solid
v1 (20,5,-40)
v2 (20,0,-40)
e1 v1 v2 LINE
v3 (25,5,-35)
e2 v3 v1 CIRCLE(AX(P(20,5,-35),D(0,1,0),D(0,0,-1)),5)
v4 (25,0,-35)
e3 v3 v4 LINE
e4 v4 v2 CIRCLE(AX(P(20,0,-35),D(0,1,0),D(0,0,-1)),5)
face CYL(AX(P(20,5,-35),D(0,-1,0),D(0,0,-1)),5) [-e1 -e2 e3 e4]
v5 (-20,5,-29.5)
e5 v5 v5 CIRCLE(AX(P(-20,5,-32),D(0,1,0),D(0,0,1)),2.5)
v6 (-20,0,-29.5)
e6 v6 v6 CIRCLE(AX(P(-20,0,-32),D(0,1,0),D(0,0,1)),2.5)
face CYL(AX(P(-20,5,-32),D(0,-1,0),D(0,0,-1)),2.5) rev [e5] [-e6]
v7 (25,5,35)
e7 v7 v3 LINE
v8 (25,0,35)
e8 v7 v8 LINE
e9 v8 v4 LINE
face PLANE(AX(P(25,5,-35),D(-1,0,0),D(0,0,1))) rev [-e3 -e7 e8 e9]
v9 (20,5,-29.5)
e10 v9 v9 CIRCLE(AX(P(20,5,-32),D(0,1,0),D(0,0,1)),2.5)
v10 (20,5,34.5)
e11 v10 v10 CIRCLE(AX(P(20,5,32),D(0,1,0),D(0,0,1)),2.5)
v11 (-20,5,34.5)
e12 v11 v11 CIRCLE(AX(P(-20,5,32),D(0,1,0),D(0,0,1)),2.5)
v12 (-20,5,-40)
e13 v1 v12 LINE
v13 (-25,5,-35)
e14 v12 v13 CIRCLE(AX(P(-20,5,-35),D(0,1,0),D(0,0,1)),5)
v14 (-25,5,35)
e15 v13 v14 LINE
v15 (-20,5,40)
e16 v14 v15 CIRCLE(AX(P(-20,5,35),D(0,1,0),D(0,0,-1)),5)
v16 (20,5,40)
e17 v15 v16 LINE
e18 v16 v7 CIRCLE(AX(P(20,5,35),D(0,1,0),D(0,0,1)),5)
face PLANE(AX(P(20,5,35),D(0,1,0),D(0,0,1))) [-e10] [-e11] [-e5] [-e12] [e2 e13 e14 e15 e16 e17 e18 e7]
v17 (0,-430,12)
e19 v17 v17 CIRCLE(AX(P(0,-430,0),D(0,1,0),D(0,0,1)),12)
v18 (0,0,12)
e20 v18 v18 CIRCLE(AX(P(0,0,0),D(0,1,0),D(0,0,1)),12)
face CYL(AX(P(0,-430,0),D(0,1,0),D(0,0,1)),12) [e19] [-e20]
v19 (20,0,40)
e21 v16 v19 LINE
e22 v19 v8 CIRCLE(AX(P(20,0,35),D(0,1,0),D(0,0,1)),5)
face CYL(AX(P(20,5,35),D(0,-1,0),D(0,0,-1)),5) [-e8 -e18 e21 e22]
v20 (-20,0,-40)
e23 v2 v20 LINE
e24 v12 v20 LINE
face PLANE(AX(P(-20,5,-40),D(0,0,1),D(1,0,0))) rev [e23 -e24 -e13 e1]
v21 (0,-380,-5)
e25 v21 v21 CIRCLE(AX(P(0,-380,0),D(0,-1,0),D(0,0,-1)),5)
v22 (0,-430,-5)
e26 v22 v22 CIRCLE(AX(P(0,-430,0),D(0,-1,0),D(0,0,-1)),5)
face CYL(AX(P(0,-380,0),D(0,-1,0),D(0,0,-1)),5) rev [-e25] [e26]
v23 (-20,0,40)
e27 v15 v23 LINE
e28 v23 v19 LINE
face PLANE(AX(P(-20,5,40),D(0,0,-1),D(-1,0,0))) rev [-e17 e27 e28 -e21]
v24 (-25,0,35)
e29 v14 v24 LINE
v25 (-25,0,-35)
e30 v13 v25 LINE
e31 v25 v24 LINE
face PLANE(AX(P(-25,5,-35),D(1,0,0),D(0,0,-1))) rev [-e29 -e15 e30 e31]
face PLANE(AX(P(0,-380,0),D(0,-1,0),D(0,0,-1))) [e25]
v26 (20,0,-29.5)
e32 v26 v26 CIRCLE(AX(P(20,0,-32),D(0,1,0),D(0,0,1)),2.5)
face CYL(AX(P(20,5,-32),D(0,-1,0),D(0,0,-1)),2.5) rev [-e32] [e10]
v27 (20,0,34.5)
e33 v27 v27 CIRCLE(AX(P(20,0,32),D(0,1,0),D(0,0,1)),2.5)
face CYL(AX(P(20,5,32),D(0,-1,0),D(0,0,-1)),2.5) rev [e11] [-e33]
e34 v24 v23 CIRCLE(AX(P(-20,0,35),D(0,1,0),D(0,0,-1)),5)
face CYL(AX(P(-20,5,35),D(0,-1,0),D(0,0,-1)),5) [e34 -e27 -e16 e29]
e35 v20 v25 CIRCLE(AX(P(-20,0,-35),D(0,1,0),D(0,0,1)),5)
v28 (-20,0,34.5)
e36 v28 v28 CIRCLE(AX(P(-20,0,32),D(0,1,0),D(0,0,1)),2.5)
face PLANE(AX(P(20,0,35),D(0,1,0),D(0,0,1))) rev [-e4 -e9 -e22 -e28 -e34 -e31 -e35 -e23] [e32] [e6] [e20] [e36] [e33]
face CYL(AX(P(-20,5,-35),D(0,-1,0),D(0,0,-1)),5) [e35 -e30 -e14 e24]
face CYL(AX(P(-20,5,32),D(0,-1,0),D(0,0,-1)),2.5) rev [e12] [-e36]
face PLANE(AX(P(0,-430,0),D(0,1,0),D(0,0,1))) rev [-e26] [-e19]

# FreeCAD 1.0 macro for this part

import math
import FreeCAD as App
import Part
import Sketcher
Q = App.Units.Quantity

doc = App.newDocument("Part")
body = doc.addObject("PartDesign::Body", "Body")

sketch1 = body.newObject("Sketcher::SketchObject", "Sketch")
sketch1.AttachmentSupport = (doc.getObject("XZ_Plane"), [""])
sketch1.MapMode = "FlatFace"
sketch1.addGeometry(Part.Circle(App.Vector(0, 0, 0), App.Vector(0, 0, 1), 12), False)
sketch1.addConstraint(Sketcher.Constraint("Coincident", 0, 3, -1, 1))
sketch1.addConstraint(Sketcher.Constraint("Diameter", 0, Q("24 mm")))
pad1 = body.newObject("PartDesign::Pad", "Pad")
pad1.Profile = sketch1
pad1.Length = 430

sketch2 = body.newObject("Sketcher::SketchObject", "Sketch001")
sketch2.AttachmentSupport = (doc.getObject("XZ_Plane"), [""])
sketch2.MapMode = "FlatFace"
sketch2.addGeometry(Part.LineSegment(App.Vector(20, -40, 0), App.Vector(-20, -40, 0)), False)
sketch2.addGeometry(Part.ArcOfCircle(Part.Circle(App.Vector(-20, -35, 0), App.Vector(0, 0, 1), 5), math.radians(180), math.radians(270)), False)
sketch2.addGeometry(Part.LineSegment(App.Vector(-25, -35, 0), App.Vector(-25, 35, 0)), False)
sketch2.addGeometry(Part.ArcOfCircle(Part.Circle(App.Vector(-20, 35, 0), App.Vector(0, 0, 1), 5), math.radians(90), math.radians(180)), False)
sketch2.addGeometry(Part.LineSegment(App.Vector(-20, 40, 0), App.Vector(20, 40, 0)), False)
sketch2.addGeometry(Part.ArcOfCircle(Part.Circle(App.Vector(20, 35, 0), App.Vector(0, 0, 1), 5), math.radians(0), math.radians(90)), False)
sketch2.addGeometry(Part.LineSegment(App.Vector(25, 35, 0), App.Vector(25, -35, 0)), False)
sketch2.addGeometry(Part.ArcOfCircle(Part.Circle(App.Vector(20, -35, 0), App.Vector(0, 0, 1), 5), math.radians(-90), math.radians(0)), False)
sketch2.addGeometry(Part.Circle(App.Vector(20, 32, 0), App.Vector(0, 0, 1), 2.5), False)
sketch2.addGeometry(Part.Circle(App.Vector(-20, 32, 0), App.Vector(0, 0, 1), 2.5), False)
sketch2.addGeometry(Part.Circle(App.Vector(20, -32, 0), App.Vector(0, 0, 1), 2.5), False)
sketch2.addGeometry(Part.Circle(App.Vector(-20, -32, 0), App.Vector(0, 0, 1), 2.5), False)
sketch2.addConstraint(Sketcher.Constraint("Tangent", 0, 2, 1, 2))
sketch2.addConstraint(Sketcher.Constraint("Tangent", 1, 1, 2, 1))
sketch2.addConstraint(Sketcher.Constraint("Tangent", 2, 2, 3, 2))
sketch2.addConstraint(Sketcher.Constraint("Tangent", 3, 1, 4, 1))
sketch2.addConstraint(Sketcher.Constraint("Tangent", 4, 2, 5, 2))
sketch2.addConstraint(Sketcher.Constraint("Tangent", 5, 1, 6, 1))
sketch2.addConstraint(Sketcher.Constraint("Tangent", 6, 2, 7, 2))
sketch2.addConstraint(Sketcher.Constraint("Tangent", 7, 1, 0, 1))
sketch2.addConstraint(Sketcher.Constraint("Horizontal", 0))
sketch2.addConstraint(Sketcher.Constraint("Vertical", 2))
sketch2.addConstraint(Sketcher.Constraint("Horizontal", 4))
sketch2.addConstraint(Sketcher.Constraint("Vertical", 6))
sketch2.addConstraint(Sketcher.Constraint("Equal", 1, 3))
sketch2.addConstraint(Sketcher.Constraint("Equal", 3, 5))
sketch2.addConstraint(Sketcher.Constraint("Equal", 5, 7))
sketch2.addConstraint(Sketcher.Constraint("Equal", 8, 9))
sketch2.addConstraint(Sketcher.Constraint("Equal", 9, 10))
sketch2.addConstraint(Sketcher.Constraint("Equal", 10, 11))
sketch2.addConstraint(Sketcher.Constraint("Symmetric", 1, 3, 5, 3, -1, 1))
sketch2.addConstraint(Sketcher.Constraint("Symmetric", 9, 3, 10, 3, -1, 1))
sketch2.addConstraint(Sketcher.Constraint("Symmetric", 8, 3, 11, 3, -1, 1))
sketch2.addConstraint(Sketcher.Constraint("Symmetric", 8, 3, 9, 3, -2))
sketch2.addConstraint(Sketcher.Constraint("Vertical", 7, 3, 8, 3))
sketch2.addConstraint(Sketcher.Constraint("Diameter", 8, Q("5 mm")))
sketch2.addConstraint(Sketcher.Constraint("Radius", 1, Q("5 mm")))
sketch2.addConstraint(Sketcher.Constraint("DistanceX", 0, 2, 0, 1, Q("40 mm")))
sketch2.addConstraint(Sketcher.Constraint("DistanceY", 2, 1, 2, 2, Q("70 mm")))
sketch2.addConstraint(Sketcher.Constraint("DistanceY", -1, 1, 8, 3, Q("32 mm")))
pad2 = body.newObject("PartDesign::Pad", "Pad001")
pad2.Profile = sketch2
pad2.Length = 5
pad2.Reversed = True

sketch3 = body.newObject("Sketcher::SketchObject", "Sketch002")
sketch3.AttachmentSupport = (doc.getObject("XZ_Plane"), [""])
sketch3.MapMode = "FlatFace"
sketch3.AttachmentOffset = App.Placement(App.Vector(0, 0, 430), App.Rotation())
sketch3.addGeometry(Part.Circle(App.Vector(0, 0, 0), App.Vector(0, 0, 1), 5), False)
sketch3.addConstraint(Sketcher.Constraint("Coincident", 0, 3, -1, 1))
sketch3.addConstraint(Sketcher.Constraint("Diameter", 0, Q("10 mm")))
pocket1 = body.newObject("PartDesign::Pocket", "Pocket")
pocket1.Profile = sketch3
pocket1.Length = 50

doc.recompute()
